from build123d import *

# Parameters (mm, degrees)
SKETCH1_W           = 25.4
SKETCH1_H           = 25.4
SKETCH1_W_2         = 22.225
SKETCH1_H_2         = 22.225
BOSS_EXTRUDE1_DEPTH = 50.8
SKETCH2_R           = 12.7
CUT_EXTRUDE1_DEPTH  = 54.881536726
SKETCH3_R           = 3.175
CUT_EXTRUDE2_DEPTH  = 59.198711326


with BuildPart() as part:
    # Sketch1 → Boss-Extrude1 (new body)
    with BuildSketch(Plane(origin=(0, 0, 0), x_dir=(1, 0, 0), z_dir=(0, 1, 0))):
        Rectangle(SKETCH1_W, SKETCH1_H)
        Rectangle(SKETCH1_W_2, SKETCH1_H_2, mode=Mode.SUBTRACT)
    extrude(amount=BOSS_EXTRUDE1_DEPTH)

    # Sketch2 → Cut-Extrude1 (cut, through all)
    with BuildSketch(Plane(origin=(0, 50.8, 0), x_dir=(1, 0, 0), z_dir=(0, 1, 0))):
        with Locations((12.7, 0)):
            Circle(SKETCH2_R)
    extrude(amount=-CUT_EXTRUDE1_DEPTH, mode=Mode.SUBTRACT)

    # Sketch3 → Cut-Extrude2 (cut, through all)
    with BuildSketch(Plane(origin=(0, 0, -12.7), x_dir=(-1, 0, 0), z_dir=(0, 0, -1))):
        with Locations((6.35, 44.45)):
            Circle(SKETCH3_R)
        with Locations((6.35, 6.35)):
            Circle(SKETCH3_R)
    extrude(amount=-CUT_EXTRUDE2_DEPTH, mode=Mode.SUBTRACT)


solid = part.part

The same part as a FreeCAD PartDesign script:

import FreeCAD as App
import Part
import Sketcher
from FreeCAD import Vector
Q = App.Units.Quantity

doc = App.newDocument("Part")
body = doc.addObject("PartDesign::Body", "Body")

sketch1 = body.newObject("Sketcher::SketchObject", "Sketch")
sketch1.AttachmentSupport = (doc.getObject("XZ_Plane"), [""])
sketch1.MapMode = "FlatFace"
sketch1.addGeometry([
    Part.LineSegment(Vector(-13, -13, 0), Vector(-13, 13, 0)),
    Part.LineSegment(Vector(-13, 13, 0), Vector(13, 13, 0)),
    Part.LineSegment(Vector(13, 13, 0), Vector(13, -13, 0)),
    Part.LineSegment(Vector(13, -13, 0), Vector(-13, -13, 0)),
    Part.LineSegment(Vector(11, 11, 0), Vector(-11, 11, 0)),
    Part.LineSegment(Vector(-11, 11, 0), Vector(-11, -11, 0)),
    Part.LineSegment(Vector(-11, -11, 0), Vector(11, -11, 0)),
    Part.LineSegment(Vector(11, -11, 0), Vector(11, 11, 0)),
], False)
sketch1.addConstraint([
    Sketcher.Constraint("Coincident", 0, 2, 1, 1),
    Sketcher.Constraint("Coincident", 1, 2, 2, 1),
    Sketcher.Constraint("Coincident", 2, 2, 3, 1),
    Sketcher.Constraint("Coincident", 3, 2, 0, 1),
    Sketcher.Constraint("Coincident", 4, 2, 5, 1),
    Sketcher.Constraint("Coincident", 5, 2, 6, 1),
    Sketcher.Constraint("Coincident", 6, 2, 7, 1),
    Sketcher.Constraint("Coincident", 7, 2, 4, 1),
    Sketcher.Constraint("Vertical", 0),
    Sketcher.Constraint("Horizontal", 1),
    Sketcher.Constraint("Vertical", 2),
    Sketcher.Constraint("Horizontal", 3),
    Sketcher.Constraint("Horizontal", 4),
    Sketcher.Constraint("Vertical", 5),
    Sketcher.Constraint("Horizontal", 6),
    Sketcher.Constraint("Vertical", 7),
    Sketcher.Constraint("Symmetric", 0, 2, 2, 2, -1, 1),
    Sketcher.Constraint("Symmetric", 4, 2, 6, 2, -1, 1),
    Sketcher.Constraint("Equal", 3, 0),
    Sketcher.Constraint("Equal", 6, 5),
    Sketcher.Constraint("DistanceX", 1, 1, 1, 2, Q("1 in")),
    Sketcher.Constraint("DistanceX", 4, 2, 4, 1, Q("0.875 in")),
])
pad1 = body.newObject("PartDesign::Pad", "Pad")
pad1.Profile = sketch1
pad1.Length = Q("2 in")
pad1.Reversed = True

sketch2 = body.newObject("Sketcher::SketchObject", "Sketch001")
sketch2.AttachmentSupport = (doc.getObject("XZ_Plane"), [""])
sketch2.MapMode = "FlatFace"
sketch2.AttachmentOffset = App.Placement(Vector(0, 0, -2 * 25.4), App.Rotation())
sketch2.addGeometry(Part.Circle(Vector(13, 0, 0), Vector(0, 0, 1), 13), False)
sketch2.addConstraint([
    Sketcher.Constraint("PointOnObject", 0, 3, -1),
    Sketcher.Constraint("Diameter", 0, Q("1 in")),
    Sketcher.Constraint("DistanceX", -1, 1, 0, 3, Q("0.5 in")),
])
pocket1 = body.newObject("PartDesign::Pocket", "Pocket")
pocket1.Profile = sketch2
pocket1.Type = "ThroughAll"
pocket1.Reversed = True

sketch3 = body.newObject("Sketcher::SketchObject", "Sketch002")
sketch3.AttachmentSupport = (doc.getObject("XY_Plane"), [""])
sketch3.MapMode = "FlatFace"
sketch3.AttachmentOffset = App.Placement(Vector(0, 0, -0.5 * 25.4), App.Rotation())
sketch3.addGeometry([
    Part.Circle(Vector(-6.3, 44.5, 0), Vector(0, 0, 1), 3.2),
    Part.Circle(Vector(-6.3, 6.3, 0), Vector(0, 0, 1), 3.2),
], False)
sketch3.addConstraint([
    Sketcher.Constraint("Equal", 0, 1),
    Sketcher.Constraint("Vertical", 0, 3, 1, 3),
    Sketcher.Constraint("Diameter", 0, Q("0.25 in")),
    Sketcher.Constraint("DistanceY", 1, 3, 0, 3, Q("1.5 in")),
    Sketcher.Constraint("DistanceX", 0, 3, -1, 1, Q("0.25 in")),
    Sketcher.Constraint("DistanceY", -1, 1, 0, 3, Q("1.75 in")),
])
pocket2 = body.newObject("PartDesign::Pocket", "Pocket001")
pocket2.Profile = sketch3
pocket2.Type = "ThroughAll"
pocket2.Reversed = True

doc.recompute()
